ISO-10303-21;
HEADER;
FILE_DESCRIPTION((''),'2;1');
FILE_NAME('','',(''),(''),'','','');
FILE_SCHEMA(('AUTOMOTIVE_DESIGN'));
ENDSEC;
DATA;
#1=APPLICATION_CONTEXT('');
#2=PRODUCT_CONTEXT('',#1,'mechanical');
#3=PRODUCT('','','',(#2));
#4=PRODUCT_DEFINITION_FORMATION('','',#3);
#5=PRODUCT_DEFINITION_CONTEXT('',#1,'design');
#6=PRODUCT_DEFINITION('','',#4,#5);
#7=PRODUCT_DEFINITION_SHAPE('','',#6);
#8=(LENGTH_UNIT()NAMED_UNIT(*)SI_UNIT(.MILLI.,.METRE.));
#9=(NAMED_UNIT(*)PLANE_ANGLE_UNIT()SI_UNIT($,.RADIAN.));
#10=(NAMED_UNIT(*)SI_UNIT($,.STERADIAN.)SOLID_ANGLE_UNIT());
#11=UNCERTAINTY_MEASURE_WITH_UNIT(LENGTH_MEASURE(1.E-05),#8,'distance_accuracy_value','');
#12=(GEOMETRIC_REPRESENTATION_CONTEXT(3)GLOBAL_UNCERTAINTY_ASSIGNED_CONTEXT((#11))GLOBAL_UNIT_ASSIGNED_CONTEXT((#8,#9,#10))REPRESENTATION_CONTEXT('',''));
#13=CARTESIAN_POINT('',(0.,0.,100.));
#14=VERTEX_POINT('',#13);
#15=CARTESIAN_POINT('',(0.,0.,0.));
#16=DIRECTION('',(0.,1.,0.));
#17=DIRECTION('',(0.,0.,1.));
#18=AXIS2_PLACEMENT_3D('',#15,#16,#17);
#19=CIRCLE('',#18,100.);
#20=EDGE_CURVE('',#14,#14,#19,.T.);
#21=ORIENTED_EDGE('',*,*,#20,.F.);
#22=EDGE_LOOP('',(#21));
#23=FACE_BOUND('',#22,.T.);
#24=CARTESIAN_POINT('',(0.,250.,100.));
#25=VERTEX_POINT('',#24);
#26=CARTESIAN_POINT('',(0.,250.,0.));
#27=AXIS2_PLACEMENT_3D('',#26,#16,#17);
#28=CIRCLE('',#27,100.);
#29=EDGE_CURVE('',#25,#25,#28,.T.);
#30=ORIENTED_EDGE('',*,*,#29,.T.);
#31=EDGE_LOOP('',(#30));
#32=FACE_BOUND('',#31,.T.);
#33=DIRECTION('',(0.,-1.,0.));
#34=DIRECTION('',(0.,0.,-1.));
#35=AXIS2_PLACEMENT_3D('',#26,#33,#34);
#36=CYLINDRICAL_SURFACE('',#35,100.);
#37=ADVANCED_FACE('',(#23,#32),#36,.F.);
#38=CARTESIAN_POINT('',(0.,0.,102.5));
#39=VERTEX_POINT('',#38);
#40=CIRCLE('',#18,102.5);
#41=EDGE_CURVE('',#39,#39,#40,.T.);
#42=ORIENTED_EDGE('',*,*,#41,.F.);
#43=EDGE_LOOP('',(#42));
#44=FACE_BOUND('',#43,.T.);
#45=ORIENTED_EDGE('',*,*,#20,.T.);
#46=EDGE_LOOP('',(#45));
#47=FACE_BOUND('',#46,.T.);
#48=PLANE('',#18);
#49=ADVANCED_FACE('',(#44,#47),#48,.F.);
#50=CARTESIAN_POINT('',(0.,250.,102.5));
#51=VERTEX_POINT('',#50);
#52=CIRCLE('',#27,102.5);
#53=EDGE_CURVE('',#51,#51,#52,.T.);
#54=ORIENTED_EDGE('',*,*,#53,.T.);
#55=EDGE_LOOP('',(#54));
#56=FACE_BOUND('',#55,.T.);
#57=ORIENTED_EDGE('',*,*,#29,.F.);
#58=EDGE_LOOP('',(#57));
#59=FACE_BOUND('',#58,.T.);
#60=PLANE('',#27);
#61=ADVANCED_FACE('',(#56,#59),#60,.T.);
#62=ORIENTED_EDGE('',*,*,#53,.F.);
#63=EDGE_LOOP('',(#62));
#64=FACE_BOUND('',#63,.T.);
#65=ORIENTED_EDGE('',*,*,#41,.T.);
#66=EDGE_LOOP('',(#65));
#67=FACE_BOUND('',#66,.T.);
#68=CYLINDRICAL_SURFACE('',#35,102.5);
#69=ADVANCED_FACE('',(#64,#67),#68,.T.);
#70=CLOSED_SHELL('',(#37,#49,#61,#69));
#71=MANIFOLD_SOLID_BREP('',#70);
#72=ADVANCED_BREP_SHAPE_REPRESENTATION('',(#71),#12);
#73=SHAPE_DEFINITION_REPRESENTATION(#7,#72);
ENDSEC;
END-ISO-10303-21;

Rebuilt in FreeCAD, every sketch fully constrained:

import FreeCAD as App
import Part
import Sketcher

doc = App.newDocument("Part")
body = doc.addObject("PartDesign::Body", "Body")

# Sketch on XZ plane
sketch1 = doc.addObject("Sketcher::SketchObject", "Sketch")
body.addObject(sketch1)
sketch1.AttachmentSupport = (doc.XZ_Plane, [""])
sketch1.MapMode = "FlatFace"
sketch1.addGeometry(Part.Circle(App.Vector(0, 0, 0), App.Vector(0, 0, 1), 102.5), False)
sketch1.addGeometry(Part.Circle(App.Vector(0, 0, 0), App.Vector(0, 0, 1), 100), False)
sketch1.addConstraint(Sketcher.Constraint("Coincident", 0, 3, -1, 1))
sketch1.addConstraint(Sketcher.Constraint("Coincident", 1, 3, -1, 1))
sketch1.addConstraint(Sketcher.Constraint("Diameter", 0, 205.0))
sketch1.addConstraint(Sketcher.Constraint("Diameter", 1, 200.0))
pad1 = doc.addObject("PartDesign::Pad", "Pad")
body.addObject(pad1)
pad1.Profile = sketch1
pad1.Length = 250
pad1.Reversed = True

doc.recompute()
